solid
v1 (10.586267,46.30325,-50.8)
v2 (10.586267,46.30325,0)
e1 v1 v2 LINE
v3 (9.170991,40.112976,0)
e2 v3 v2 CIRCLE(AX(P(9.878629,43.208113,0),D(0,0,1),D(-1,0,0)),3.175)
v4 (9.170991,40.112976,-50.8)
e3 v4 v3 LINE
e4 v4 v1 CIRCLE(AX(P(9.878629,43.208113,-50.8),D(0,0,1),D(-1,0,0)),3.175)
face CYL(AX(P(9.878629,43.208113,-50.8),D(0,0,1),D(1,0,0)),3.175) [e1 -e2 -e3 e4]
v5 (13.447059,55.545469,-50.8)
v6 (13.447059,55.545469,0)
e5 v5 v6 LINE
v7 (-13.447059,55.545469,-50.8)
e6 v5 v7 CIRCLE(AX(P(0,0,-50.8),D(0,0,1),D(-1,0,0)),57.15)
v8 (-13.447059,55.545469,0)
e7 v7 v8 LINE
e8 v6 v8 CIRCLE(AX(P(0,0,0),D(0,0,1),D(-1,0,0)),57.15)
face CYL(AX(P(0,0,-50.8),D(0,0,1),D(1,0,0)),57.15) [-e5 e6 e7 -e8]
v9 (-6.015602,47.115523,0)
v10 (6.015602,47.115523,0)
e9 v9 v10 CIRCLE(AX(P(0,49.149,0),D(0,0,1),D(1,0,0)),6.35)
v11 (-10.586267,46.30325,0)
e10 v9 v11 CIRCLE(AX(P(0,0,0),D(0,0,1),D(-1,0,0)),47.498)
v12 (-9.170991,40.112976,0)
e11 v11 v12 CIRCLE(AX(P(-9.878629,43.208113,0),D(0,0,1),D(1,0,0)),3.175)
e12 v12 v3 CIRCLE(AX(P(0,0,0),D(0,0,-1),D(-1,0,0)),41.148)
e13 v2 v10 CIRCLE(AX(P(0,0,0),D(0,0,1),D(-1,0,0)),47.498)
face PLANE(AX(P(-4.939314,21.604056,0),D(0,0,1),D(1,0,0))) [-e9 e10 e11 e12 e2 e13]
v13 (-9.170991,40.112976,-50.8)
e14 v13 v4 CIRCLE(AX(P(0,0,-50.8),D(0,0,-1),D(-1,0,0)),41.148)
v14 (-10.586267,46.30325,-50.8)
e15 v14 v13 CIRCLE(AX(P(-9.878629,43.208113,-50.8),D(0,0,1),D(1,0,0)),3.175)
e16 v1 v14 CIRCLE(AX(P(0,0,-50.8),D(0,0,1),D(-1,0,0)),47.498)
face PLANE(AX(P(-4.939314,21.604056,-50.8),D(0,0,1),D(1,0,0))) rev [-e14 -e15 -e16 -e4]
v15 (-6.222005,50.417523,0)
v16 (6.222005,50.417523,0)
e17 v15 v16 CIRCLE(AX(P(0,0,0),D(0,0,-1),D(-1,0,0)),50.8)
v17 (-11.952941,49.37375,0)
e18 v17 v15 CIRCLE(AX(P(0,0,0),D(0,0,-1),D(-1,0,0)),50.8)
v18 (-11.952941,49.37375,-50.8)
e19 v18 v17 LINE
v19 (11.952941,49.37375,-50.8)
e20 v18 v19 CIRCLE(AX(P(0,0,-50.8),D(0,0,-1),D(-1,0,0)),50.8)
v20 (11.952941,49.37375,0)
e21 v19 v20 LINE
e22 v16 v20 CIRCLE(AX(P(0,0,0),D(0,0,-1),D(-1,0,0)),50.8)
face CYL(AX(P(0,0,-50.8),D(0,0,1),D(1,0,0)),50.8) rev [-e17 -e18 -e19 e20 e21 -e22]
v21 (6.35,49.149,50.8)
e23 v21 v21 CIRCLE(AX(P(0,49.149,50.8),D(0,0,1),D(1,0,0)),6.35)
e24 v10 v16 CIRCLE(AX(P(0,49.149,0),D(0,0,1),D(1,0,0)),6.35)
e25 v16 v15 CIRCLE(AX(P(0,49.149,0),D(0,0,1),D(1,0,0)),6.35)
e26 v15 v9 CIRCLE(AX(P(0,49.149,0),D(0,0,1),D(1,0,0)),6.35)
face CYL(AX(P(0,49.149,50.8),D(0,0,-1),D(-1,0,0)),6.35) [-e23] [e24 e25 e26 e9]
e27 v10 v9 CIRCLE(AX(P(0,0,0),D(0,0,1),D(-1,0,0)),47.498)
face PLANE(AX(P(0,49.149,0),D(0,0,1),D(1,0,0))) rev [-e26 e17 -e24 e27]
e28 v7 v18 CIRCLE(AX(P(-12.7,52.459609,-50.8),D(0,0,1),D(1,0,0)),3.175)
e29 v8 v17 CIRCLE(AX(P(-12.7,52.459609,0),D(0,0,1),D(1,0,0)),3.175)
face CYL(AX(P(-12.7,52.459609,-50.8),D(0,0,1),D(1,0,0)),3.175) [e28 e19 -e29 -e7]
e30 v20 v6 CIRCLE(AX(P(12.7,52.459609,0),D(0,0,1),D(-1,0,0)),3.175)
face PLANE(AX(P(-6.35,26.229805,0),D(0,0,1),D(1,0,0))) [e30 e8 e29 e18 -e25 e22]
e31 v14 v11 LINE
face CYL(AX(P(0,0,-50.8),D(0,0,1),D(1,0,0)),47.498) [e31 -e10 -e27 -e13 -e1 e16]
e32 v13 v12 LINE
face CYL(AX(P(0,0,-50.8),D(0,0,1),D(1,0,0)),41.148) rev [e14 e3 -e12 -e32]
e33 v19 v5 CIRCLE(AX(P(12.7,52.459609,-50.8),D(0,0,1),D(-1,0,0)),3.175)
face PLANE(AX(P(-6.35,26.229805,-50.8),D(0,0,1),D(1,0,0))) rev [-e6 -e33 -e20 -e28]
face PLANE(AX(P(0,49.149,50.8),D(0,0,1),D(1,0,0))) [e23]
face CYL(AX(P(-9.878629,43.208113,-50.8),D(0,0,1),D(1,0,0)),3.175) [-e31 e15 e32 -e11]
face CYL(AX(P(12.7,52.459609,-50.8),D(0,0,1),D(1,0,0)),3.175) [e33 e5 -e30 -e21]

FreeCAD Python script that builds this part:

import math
import FreeCAD as App
import Part
import Sketcher

V = App.Vector
Q = App.Units.Quantity

doc = App.newDocument("Part")
body = doc.addObject("PartDesign::Body", "Body")

sketch1 = body.newObject("Sketcher::SketchObject", "Sketch")
sketch1.AttachmentSupport = (doc.getObject("XY_Plane"), [""])
sketch1.MapMode = "FlatFace"
sketch1.addGeometry(Part.ArcOfCircle(Part.Circle(V(0, 0, 0), V(0, 0, 1), 50.8), math.radians(76), math.radians(104)), False)
sketch1.addGeometry(Part.ArcOfCircle(Part.Circle(V(12.7, 52.5, 0), V(0, 0, 1), 3.2), math.radians(-104), math.radians(76)), False)
sketch1.addGeometry(Part.ArcOfCircle(Part.Circle(V(0, 0, 0), V(0, 0, 1), 57.2), math.radians(76), math.radians(104)), False)
sketch1.addGeometry(Part.ArcOfCircle(Part.Circle(V(-12.7, 52.5, 0), V(0, 0, 1), 3.2), math.radians(104), math.radians(284)), False)
sketch1.addConstraint(Sketcher.Constraint("Tangent", 0, 1, 1, 1))
sketch1.addConstraint(Sketcher.Constraint("Tangent", 1, 2, 2, 1))
sketch1.addConstraint(Sketcher.Constraint("Tangent", 2, 2, 3, 1))
sketch1.addConstraint(Sketcher.Constraint("Tangent", 3, 2, 0, 2))
sketch1.addConstraint(Sketcher.Constraint("Coincident", 0, 3, -1, 1))
sketch1.addConstraint(Sketcher.Constraint("Coincident", 2, 3, -1, 1))
sketch1.addConstraint(Sketcher.Constraint("Horizontal", 1, 3, 3, 3))
sketch1.addConstraint(Sketcher.Constraint("Radius", 0, Q("2 in")))
sketch1.addConstraint(Sketcher.Constraint("Radius", 2, Q("2.25 in")))
sketch1.addConstraint(Sketcher.Constraint("DistanceX", 3, 3, 1, 3, Q("1 in")))
pad1 = body.newObject("PartDesign::Pad", "Pad")
pad1.Profile = sketch1
pad1.Length = Q("2 in")
pad1.Reversed = True
body2 = doc.addObject("PartDesign::Body", "Body001")

sketch2 = body2.newObject("Sketcher::SketchObject", "Sketch001")
sketch2.AttachmentSupport = (doc.getObject("XY_Plane001"), [""])
sketch2.MapMode = "FlatFace"
sketch2.addGeometry(Part.ArcOfCircle(Part.Circle(V(0, 0, 0), V(0, 0, 1), 47.5), math.radians(77), math.radians(103)), False)
sketch2.addGeometry(Part.ArcOfCircle(Part.Circle(V(-9.9, 43.2, 0), V(0, 0, 1), 3.2), math.radians(103), math.radians(283)), False)
sketch2.addGeometry(Part.ArcOfCircle(Part.Circle(V(0, 0, 0), V(0, 0, 1), 41.1), math.radians(77), math.radians(103)), False)
sketch2.addGeometry(Part.ArcOfCircle(Part.Circle(V(9.9, 43.2, 0), V(0, 0, 1), 3.2), math.radians(-103), math.radians(77)), False)
sketch2.addConstraint(Sketcher.Constraint("Tangent", 0, 2, 1, 1))
sketch2.addConstraint(Sketcher.Constraint("Tangent", 1, 2, 2, 2))
sketch2.addConstraint(Sketcher.Constraint("Tangent", 2, 1, 3, 1))
sketch2.addConstraint(Sketcher.Constraint("Tangent", 3, 2, 0, 1))
sketch2.addConstraint(Sketcher.Constraint("Coincident", 0, 3, -1, 1))
sketch2.addConstraint(Sketcher.Constraint("Coincident", 2, 3, -1, 1))
sketch2.addConstraint(Sketcher.Constraint("Horizontal", 1, 3, 3, 3))
sketch2.addConstraint(Sketcher.Constraint("Radius", 0, Q("1.87 in")))
sketch2.addConstraint(Sketcher.Constraint("Radius", 2, Q("1.62 in")))
sketch2.addConstraint(Sketcher.Constraint("DistanceX", 1, 3, -1, 1, 9.878629))
pad2 = body2.newObject("PartDesign::Pad", "Pad001")
pad2.Profile = sketch2
pad2.Length = Q("2 in")
pad2.Reversed = True
body.AllowCompound = True
doc.recompute()

boolean = body.newObject("PartDesign::Boolean", "Boolean")
boolean.Type = "Fuse"
boolean.addObjects([body2])

sketch3 = body.newObject("Sketcher::SketchObject", "Sketch002")
sketch3.AttachmentSupport = (doc.getObject("XY_Plane"), [""])
sketch3.MapMode = "FlatFace"
sketch3.addGeometry(Part.Circle(V(0, 49, 0), V(0, 0, 1), 6), False)
sketch3.addConstraint(Sketcher.Constraint("PointOnObject", 0, 3, -2))
sketch3.addConstraint(Sketcher.Constraint("Diameter", 0, Q("0.5 in")))
sketch3.addConstraint(Sketcher.Constraint("DistanceY", -1, 1, 0, 3, Q("1.935 in")))
pad3 = body.newObject("PartDesign::Pad", "Pad002")
pad3.Profile = sketch3
pad3.Length = Q("2 in")

doc.recompute()
